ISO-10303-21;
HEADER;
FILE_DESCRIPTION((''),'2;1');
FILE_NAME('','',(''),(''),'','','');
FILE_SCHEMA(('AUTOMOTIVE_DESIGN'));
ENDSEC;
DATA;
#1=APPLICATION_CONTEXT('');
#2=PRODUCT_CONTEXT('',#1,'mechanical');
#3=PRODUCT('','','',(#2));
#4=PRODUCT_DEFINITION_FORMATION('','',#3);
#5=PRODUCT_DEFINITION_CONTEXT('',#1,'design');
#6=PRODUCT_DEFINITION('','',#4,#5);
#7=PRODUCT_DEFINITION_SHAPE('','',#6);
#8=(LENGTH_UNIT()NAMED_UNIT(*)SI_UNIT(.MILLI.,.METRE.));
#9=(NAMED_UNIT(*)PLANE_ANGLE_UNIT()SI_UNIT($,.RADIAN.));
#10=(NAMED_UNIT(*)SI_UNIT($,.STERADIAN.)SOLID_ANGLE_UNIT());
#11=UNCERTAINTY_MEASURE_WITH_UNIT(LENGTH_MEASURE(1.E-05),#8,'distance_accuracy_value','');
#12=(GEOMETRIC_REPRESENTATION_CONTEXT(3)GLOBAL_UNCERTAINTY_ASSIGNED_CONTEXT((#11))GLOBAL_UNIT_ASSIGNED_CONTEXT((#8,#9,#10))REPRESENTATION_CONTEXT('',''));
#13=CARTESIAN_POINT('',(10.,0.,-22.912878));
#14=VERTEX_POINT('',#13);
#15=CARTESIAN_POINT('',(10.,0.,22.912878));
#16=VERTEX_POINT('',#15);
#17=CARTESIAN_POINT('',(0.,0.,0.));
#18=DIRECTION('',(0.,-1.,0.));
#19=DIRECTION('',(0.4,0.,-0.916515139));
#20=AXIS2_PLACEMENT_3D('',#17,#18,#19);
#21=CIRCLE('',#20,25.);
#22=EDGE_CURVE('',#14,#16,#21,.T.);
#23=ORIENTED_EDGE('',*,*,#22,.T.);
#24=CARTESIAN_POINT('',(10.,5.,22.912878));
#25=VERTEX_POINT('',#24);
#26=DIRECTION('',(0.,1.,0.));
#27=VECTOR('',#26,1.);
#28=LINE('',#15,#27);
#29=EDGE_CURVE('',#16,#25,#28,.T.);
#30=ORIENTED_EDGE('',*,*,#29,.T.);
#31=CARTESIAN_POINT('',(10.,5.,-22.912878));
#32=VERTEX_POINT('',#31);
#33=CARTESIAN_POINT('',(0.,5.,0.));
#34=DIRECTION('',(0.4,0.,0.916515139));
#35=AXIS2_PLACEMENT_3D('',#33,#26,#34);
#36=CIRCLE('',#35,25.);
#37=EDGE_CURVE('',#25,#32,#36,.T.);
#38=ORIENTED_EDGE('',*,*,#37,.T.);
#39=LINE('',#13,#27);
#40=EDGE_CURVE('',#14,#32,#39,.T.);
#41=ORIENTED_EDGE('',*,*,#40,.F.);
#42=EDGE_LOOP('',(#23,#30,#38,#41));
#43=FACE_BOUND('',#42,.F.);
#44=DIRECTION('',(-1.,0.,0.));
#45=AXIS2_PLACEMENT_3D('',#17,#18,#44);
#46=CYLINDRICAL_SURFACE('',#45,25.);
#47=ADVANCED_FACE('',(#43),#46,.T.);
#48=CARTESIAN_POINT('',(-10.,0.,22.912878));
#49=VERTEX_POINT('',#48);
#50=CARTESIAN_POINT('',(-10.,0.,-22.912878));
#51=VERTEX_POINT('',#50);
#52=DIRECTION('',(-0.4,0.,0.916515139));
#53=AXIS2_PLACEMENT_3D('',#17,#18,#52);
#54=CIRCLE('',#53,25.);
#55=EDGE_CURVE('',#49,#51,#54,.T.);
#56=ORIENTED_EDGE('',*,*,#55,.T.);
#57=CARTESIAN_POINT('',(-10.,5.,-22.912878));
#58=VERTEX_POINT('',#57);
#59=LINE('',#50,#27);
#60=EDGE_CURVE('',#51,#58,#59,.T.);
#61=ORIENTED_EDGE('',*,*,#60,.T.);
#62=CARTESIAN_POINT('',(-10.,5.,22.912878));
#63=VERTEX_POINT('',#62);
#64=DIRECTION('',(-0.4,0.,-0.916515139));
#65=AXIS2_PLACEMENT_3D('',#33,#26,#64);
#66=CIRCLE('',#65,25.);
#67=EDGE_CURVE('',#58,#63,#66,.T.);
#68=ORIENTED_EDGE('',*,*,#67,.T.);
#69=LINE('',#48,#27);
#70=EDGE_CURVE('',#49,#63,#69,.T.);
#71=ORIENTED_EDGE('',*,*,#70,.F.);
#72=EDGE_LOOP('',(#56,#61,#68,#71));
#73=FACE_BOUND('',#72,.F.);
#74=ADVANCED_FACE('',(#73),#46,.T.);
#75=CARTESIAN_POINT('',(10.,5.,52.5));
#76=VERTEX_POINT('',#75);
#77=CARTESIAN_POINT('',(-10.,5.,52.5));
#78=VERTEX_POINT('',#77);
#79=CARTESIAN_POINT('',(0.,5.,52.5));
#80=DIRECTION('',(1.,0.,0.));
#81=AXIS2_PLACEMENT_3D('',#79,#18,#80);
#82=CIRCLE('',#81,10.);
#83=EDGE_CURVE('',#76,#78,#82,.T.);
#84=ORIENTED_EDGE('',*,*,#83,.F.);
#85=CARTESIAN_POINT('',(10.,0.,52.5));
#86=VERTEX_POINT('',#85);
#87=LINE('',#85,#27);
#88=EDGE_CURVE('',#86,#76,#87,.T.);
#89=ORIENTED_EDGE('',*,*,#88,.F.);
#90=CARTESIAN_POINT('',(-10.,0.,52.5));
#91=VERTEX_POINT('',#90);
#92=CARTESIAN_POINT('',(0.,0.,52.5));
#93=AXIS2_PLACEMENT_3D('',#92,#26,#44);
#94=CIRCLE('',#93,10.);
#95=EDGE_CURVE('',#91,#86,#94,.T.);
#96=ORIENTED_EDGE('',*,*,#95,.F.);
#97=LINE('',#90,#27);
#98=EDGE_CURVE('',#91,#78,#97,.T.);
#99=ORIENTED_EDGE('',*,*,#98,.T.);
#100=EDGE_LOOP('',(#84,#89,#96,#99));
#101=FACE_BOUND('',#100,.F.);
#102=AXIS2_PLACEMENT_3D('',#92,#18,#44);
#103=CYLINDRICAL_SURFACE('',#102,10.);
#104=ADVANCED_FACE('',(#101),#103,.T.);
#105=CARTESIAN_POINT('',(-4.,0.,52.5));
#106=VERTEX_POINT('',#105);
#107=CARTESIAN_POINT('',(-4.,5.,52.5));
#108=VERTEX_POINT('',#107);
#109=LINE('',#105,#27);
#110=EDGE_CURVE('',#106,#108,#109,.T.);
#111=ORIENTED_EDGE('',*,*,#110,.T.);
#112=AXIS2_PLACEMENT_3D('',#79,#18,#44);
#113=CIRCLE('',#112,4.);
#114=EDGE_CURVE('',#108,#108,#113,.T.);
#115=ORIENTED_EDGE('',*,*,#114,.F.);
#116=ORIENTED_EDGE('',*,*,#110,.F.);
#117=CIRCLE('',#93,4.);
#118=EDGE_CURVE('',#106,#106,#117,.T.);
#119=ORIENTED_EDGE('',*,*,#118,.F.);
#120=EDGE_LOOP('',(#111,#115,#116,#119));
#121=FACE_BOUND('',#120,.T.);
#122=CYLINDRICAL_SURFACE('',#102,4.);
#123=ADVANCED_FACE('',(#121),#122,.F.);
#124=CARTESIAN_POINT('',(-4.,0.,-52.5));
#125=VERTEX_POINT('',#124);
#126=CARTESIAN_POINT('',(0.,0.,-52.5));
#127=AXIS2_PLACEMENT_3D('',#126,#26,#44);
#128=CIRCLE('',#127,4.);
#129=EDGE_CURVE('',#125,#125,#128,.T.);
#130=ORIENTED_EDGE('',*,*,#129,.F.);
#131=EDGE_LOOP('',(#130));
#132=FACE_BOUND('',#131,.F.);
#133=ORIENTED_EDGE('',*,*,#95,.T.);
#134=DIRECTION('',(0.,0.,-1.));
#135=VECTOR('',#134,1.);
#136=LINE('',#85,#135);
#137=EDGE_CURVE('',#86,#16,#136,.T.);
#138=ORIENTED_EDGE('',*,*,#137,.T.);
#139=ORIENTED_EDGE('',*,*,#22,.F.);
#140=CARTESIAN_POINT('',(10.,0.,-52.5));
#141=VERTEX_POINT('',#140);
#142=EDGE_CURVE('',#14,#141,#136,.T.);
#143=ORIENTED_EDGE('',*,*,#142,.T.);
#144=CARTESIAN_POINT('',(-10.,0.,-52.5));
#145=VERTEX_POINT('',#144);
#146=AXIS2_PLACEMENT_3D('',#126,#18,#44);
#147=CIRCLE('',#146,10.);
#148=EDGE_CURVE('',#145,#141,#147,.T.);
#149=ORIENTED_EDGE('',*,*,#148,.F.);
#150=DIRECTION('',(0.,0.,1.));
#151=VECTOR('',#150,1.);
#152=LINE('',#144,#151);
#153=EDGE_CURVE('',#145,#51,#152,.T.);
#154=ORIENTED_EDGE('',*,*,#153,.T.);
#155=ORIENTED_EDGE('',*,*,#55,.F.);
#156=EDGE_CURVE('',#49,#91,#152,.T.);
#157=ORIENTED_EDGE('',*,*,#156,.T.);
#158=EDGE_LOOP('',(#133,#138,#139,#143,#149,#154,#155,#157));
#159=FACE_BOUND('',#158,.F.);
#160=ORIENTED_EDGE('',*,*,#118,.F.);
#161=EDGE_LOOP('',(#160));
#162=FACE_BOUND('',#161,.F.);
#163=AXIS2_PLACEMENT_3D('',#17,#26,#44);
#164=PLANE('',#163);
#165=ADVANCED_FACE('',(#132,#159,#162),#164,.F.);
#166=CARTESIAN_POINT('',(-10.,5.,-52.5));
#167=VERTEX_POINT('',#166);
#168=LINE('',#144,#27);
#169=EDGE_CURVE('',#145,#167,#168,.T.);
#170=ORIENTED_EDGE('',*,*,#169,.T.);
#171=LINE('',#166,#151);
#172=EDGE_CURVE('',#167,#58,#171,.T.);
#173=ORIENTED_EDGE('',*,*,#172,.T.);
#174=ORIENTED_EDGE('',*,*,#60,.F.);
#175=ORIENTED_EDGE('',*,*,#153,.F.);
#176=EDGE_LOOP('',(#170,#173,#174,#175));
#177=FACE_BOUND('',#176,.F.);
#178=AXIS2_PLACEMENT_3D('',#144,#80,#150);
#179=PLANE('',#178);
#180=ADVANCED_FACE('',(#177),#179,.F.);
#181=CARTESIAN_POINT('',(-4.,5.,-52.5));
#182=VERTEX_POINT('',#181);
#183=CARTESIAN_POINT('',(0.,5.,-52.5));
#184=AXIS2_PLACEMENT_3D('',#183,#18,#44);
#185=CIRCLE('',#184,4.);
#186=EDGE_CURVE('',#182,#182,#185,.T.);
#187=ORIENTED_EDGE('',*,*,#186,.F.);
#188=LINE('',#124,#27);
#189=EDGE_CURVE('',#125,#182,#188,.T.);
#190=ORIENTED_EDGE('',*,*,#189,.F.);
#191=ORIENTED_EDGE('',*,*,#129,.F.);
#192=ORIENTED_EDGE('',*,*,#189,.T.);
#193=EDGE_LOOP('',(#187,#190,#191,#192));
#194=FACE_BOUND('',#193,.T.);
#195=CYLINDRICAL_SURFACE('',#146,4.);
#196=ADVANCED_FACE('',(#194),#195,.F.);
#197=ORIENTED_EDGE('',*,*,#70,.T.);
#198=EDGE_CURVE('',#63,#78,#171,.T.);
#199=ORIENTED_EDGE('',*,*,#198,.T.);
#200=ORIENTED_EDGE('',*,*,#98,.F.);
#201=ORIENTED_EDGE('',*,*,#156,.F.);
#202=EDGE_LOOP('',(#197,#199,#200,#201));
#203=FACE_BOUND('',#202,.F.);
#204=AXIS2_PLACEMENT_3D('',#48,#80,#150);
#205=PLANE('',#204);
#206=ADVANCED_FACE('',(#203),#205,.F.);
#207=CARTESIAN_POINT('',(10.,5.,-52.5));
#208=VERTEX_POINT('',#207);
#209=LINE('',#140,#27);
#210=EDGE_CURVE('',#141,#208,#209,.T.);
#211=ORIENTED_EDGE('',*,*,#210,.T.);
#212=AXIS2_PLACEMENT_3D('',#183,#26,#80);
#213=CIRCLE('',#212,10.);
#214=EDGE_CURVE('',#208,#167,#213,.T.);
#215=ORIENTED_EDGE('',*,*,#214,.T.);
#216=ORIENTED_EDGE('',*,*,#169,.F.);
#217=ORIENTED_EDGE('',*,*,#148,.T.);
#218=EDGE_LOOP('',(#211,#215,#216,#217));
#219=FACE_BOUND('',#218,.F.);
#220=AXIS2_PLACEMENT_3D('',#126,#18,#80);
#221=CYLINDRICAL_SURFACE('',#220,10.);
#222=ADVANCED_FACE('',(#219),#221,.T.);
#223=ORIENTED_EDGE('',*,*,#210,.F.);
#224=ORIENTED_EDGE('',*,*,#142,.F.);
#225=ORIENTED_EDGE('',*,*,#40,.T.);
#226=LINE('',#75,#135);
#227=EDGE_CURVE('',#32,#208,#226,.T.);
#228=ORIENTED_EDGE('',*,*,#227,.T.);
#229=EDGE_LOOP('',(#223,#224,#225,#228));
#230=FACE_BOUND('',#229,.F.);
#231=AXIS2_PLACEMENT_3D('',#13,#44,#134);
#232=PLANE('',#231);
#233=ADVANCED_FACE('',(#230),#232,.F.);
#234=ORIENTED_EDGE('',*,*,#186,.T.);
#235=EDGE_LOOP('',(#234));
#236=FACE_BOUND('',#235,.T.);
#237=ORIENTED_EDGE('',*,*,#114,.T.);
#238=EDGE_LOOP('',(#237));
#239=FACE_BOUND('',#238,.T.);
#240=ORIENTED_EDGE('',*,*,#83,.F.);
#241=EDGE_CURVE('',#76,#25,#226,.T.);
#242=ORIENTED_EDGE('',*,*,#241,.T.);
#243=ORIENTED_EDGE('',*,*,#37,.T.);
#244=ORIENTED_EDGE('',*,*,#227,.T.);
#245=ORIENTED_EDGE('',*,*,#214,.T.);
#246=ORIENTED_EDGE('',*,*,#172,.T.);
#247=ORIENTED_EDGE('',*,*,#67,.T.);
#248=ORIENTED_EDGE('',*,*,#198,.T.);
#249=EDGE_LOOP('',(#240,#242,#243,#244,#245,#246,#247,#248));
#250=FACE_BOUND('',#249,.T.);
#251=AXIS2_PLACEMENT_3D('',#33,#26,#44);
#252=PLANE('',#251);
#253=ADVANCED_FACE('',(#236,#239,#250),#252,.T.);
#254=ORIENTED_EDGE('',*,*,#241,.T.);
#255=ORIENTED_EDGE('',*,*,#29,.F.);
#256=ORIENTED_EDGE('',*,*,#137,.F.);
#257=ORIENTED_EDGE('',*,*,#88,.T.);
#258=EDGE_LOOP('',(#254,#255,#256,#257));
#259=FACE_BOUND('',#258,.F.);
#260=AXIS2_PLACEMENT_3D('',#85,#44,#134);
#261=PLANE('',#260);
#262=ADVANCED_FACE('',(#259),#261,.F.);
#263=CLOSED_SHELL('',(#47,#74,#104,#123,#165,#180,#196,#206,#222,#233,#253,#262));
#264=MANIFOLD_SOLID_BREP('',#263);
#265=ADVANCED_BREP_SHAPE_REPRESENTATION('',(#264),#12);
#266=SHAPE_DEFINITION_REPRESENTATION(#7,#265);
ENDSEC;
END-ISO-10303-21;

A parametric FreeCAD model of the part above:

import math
import FreeCAD as App
import Part
import Sketcher
Q = App.Units.Quantity

doc = App.newDocument("Part")
body = doc.addObject("PartDesign::Body", "Body")

# Sketch on XZ plane
sketch1 = body.newObject("Sketcher::SketchObject", "Sketch")
sketch1.AttachmentSupport = (doc.getObject("XZ_Plane"), [""])
sketch1.MapMode = "FlatFace"
sketch1.addGeometry([
    Part.LineSegment(App.Vector(10, 52.5, 0), App.Vector(10, 22.912878, 0)),  # 0
    Part.ArcOfCircle(Part.Circle(App.Vector(0, 0, 0), App.Vector(0, 0, 1), 25), math.radians(-66.421822), math.radians(66.421822)),  # 1
    Part.LineSegment(App.Vector(10, -22.912878, 0), App.Vector(10, -52.5, 0)),  # 2
    Part.ArcOfCircle(Part.Circle(App.Vector(0, -52.5, 0), App.Vector(0, 0, 1), 10), math.radians(180), math.radians(360)),  # 3
    Part.LineSegment(App.Vector(-10, -52.5, 0), App.Vector(-10, -22.912878, 0)),  # 4
    Part.ArcOfCircle(Part.Circle(App.Vector(0, 0, 0), App.Vector(0, 0, 1), 25), math.radians(113.578178), math.radians(246.421822)),  # 5
    Part.LineSegment(App.Vector(-10, 22.912878, 0), App.Vector(-10, 52.5, 0)),  # 6
    Part.ArcOfCircle(Part.Circle(App.Vector(0, 52.5, 0), App.Vector(0, 0, 1), 10), math.radians(0), math.radians(180)),  # 7
    Part.Circle(App.Vector(0, 52.5, 0), App.Vector(0, 0, 1), 4),  # 8
    Part.Circle(App.Vector(0, -52.5, 0), App.Vector(0, 0, 1), 4),  # 9
], False)
sketch1.addConstraint([
    Sketcher.Constraint("Coincident", 0, 2, 1, 2),
    Sketcher.Constraint("Coincident", 1, 1, 2, 1),
    Sketcher.Constraint("Tangent", 2, 2, 3, 2),
    Sketcher.Constraint("Tangent", 3, 1, 4, 1),
    Sketcher.Constraint("Coincident", 4, 2, 5, 2),
    Sketcher.Constraint("Coincident", 5, 1, 6, 1),
    Sketcher.Constraint("Tangent", 6, 2, 7, 2),
    Sketcher.Constraint("Tangent", 7, 1, 0, 1),
    Sketcher.Constraint("Vertical", 0),
    Sketcher.Constraint("Vertical", 2),
    Sketcher.Constraint("Vertical", 4),
    Sketcher.Constraint("Vertical", 6),
    Sketcher.Constraint("Coincident", 1, 3, -1, 1),
    Sketcher.Constraint("Coincident", 5, 3, -1, 1),
    Sketcher.Constraint("Coincident", 8, 3, 7, 3),
    Sketcher.Constraint("Coincident", 9, 3, 3, 3),
    Sketcher.Constraint("Equal", 1, 5),
    Sketcher.Constraint("Equal", 3, 7),
    Sketcher.Constraint("Equal", 8, 9),
    Sketcher.Constraint("Symmetric", 3, 3, 7, 3, -1, 1),
    Sketcher.Constraint("PointOnObject", 3, 3, -2),
    Sketcher.Constraint("Diameter", 8, Q("8 mm")),
    Sketcher.Constraint("Radius", 1, Q("25 mm")),
    Sketcher.Constraint("Radius", 3, Q("10 mm")),
    Sketcher.Constraint("DistanceY", 3, 3, 7, 3, Q("105 mm")),
])
pad1 = body.newObject("PartDesign::Pad", "Pad")
pad1.Profile = sketch1
pad1.Length = 5
pad1.Reversed = True

doc.recompute()
